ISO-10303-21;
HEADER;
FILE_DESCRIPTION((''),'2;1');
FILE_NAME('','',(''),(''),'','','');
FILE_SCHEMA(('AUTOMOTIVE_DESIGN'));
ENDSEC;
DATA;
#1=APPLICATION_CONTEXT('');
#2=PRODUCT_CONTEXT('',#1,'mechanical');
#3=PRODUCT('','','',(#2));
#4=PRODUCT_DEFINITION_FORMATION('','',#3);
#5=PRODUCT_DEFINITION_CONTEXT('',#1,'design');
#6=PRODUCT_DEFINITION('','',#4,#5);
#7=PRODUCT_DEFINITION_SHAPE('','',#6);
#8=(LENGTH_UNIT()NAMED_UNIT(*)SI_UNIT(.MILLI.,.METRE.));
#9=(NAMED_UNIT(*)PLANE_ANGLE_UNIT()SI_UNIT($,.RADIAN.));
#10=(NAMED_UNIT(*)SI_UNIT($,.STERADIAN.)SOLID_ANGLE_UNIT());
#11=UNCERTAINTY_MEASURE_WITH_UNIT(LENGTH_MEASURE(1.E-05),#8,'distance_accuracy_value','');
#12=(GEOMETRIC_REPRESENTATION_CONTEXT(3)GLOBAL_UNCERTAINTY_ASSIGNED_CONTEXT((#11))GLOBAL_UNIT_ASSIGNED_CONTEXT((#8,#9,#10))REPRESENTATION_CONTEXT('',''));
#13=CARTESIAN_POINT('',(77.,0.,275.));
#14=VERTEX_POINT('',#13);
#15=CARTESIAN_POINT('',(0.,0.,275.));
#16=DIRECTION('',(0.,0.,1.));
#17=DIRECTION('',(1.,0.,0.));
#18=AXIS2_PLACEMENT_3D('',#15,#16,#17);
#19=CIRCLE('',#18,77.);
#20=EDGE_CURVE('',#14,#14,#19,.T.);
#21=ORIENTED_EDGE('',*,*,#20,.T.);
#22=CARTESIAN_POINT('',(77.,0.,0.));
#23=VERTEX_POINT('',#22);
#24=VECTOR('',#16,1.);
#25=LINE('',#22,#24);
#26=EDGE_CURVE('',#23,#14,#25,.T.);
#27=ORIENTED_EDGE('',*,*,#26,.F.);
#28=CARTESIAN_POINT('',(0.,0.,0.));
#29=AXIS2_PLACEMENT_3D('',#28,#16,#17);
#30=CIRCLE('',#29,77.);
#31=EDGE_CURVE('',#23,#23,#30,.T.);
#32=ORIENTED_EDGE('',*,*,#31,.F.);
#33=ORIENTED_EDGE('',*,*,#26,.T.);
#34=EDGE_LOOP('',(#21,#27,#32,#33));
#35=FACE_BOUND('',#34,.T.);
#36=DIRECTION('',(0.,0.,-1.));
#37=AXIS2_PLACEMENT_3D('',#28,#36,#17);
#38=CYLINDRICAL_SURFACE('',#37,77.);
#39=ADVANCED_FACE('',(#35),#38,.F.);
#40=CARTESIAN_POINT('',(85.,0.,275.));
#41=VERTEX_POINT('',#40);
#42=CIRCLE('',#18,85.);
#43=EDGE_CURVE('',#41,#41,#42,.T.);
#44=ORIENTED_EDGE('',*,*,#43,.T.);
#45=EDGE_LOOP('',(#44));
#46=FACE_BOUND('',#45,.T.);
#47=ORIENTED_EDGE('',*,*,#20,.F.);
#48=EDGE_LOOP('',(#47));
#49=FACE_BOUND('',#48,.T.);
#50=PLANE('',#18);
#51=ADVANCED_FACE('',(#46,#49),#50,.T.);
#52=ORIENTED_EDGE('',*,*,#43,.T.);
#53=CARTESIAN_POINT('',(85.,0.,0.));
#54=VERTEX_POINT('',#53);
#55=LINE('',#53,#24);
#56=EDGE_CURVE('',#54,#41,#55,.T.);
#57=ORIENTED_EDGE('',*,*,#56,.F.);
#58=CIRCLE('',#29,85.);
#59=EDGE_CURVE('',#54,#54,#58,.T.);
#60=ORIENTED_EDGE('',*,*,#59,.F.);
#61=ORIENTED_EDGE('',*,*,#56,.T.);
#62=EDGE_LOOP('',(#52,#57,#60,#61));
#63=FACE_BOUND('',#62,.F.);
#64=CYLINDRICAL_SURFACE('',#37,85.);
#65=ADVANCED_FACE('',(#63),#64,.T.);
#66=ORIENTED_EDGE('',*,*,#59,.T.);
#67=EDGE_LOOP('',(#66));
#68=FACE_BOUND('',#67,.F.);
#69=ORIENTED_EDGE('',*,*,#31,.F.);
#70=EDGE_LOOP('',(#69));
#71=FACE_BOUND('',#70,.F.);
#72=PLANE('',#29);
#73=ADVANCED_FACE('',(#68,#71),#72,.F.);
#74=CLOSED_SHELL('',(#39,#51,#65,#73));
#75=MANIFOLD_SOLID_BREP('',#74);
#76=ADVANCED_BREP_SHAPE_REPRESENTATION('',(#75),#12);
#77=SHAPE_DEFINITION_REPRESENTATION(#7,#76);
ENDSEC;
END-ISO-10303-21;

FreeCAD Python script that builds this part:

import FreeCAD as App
import Part
import Sketcher

V = App.Vector
Q = App.Units.Quantity

doc = App.newDocument("Part")
params = doc.addObject("Spreadsheet::Sheet", "Params")
for row, (alias, value) in enumerate([
    ("sketch1_diameter", "170 mm"),
    ("sketch1_diameter2", "154 mm"),
    ("pad1_length", "315 mm"),
    ("sketch2_diameter", "170 mm"),
    ("sketch2_diameter2", "154 mm"),
    ("pocket1_length", "40 mm"),
], start=1):
    params.set(f"A{row}", alias)
    params.set(f"B{row}", "=" + value)
    params.setAlias(f"B{row}", alias)

body = doc.addObject("PartDesign::Body", "Body")

# Sketch on XY plane
sketch1 = doc.addObject("Sketcher::SketchObject", "Sketch")
body.addObject(sketch1)
sketch1.AttachmentSupport = (doc.XY_Plane, [""])
sketch1.MapMode = "FlatFace"
sketch1.addGeometry([
    Part.Circle(V(0, 0, 0), V(0, 0, 1), 85),
    Part.Circle(V(0, 0, 0), V(0, 0, 1), 77),
], False)
sketch1.addConstraint([
    Sketcher.Constraint("Coincident", 0, 3, -1, 1),
    Sketcher.Constraint("Coincident", 1, 3, -1, 1),
    Sketcher.Constraint("Diameter", 0, Q("170 mm")),
    Sketcher.Constraint("Diameter", 1, Q("154 mm")),
])
sketch1.setExpression("Constraints[2]", "Params.sketch1_diameter")
sketch1.setExpression("Constraints[3]", "Params.sketch1_diameter2")
pad1 = doc.addObject("PartDesign::Pad", "Pad")
body.addObject(pad1)
pad1.Profile = sketch1
pad1.setExpression("Length", "Params.pad1_length")

# Sketch on XY plane
sketch2 = doc.addObject("Sketcher::SketchObject", "Sketch001")
body.addObject(sketch2)
sketch2.AttachmentSupport = (doc.XY_Plane, [""])
sketch2.MapMode = "FlatFace"
sketch2.AttachmentOffset = App.Placement(V(0, 0, 315), App.Rotation())
sketch2.addGeometry([
    Part.Circle(V(0, 0, 0), V(0, 0, 1), 85),
    Part.Circle(V(0, 0, 0), V(0, 0, 1), 77),
], False)
sketch2.addConstraint([
    Sketcher.Constraint("Coincident", 0, 3, -1, 1),
    Sketcher.Constraint("Coincident", 1, 3, -1, 1),
    Sketcher.Constraint("Diameter", 0, Q("170 mm")),
    Sketcher.Constraint("Diameter", 1, Q("154 mm")),
])
sketch2.setExpression("Constraints[2]", "Params.sketch2_diameter")
sketch2.setExpression("Constraints[3]", "Params.sketch2_diameter2")
pocket1 = doc.addObject("PartDesign::Pocket", "Pocket")
body.addObject(pocket1)
pocket1.Profile = sketch2
pocket1.setExpression("Length", "Params.pocket1_length")

doc.recompute()
